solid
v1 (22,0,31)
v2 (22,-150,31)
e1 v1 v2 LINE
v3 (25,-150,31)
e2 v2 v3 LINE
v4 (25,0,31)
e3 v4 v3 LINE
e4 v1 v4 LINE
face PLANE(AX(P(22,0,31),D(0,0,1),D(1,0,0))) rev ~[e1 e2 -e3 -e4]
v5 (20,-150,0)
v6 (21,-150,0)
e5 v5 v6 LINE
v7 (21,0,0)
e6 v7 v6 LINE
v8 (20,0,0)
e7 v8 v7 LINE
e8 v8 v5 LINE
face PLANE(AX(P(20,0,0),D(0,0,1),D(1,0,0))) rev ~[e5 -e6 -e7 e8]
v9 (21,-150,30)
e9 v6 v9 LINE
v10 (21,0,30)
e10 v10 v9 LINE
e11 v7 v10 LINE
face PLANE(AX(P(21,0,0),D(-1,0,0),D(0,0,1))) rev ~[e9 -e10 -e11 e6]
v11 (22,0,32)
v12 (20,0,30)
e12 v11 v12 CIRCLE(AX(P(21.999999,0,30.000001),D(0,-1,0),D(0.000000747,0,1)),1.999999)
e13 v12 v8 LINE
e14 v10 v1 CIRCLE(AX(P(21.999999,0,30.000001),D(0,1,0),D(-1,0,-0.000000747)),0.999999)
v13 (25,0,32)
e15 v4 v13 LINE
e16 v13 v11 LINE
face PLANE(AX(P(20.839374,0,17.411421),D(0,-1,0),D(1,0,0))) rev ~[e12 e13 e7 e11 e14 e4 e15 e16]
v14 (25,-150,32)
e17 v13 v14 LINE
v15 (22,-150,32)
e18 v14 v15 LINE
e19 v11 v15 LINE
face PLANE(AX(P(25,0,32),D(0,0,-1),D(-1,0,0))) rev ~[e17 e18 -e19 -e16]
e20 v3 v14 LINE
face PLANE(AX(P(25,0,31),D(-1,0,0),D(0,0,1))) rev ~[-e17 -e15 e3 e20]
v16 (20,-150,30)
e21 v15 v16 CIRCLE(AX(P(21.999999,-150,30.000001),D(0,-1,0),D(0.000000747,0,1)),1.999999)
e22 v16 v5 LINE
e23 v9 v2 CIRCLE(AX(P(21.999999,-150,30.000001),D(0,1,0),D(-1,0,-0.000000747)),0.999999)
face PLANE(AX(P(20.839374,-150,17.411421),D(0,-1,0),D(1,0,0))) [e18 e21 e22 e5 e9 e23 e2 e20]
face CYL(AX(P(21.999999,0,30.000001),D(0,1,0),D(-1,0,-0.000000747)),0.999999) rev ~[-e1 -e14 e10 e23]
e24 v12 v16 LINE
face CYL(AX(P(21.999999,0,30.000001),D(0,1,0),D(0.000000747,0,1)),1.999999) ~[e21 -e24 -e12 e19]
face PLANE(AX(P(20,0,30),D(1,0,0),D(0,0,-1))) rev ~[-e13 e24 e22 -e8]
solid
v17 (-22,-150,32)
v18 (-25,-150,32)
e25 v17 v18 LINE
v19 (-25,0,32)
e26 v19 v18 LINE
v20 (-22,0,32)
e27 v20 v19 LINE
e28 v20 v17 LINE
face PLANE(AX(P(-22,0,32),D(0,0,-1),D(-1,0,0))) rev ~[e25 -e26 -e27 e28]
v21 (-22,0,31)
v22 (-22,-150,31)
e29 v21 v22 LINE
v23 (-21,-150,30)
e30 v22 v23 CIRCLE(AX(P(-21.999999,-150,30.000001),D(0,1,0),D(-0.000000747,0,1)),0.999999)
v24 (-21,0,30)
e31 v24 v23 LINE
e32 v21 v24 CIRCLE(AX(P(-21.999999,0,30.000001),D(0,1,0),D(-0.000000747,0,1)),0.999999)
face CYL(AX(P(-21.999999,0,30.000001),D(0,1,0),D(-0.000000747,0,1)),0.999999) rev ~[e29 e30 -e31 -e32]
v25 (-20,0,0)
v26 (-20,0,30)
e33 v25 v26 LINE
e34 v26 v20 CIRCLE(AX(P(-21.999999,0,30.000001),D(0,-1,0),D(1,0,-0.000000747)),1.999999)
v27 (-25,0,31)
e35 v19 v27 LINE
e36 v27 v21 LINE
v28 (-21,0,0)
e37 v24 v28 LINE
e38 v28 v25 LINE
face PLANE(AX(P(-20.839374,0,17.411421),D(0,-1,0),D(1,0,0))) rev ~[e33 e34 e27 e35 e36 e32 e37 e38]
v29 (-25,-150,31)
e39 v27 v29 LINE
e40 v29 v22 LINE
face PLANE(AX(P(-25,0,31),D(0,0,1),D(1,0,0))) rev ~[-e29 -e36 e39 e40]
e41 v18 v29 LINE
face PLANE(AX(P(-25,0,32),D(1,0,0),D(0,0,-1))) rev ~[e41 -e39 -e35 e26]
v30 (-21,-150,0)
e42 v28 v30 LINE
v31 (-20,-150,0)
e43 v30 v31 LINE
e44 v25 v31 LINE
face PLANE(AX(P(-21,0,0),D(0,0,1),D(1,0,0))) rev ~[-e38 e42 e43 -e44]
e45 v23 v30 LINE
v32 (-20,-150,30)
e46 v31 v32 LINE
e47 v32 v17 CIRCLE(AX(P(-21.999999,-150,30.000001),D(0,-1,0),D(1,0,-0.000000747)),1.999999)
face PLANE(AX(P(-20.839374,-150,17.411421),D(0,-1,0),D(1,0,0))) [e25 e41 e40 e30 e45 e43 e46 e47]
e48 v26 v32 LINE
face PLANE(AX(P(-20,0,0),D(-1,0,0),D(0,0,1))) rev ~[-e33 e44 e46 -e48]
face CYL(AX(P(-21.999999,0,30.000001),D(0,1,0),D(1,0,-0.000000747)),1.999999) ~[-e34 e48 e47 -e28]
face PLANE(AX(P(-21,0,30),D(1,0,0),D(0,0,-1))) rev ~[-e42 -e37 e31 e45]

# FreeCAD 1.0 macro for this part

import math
import FreeCAD as App
import Part
import Sketcher

V = App.Vector
Q = App.Units.Quantity

doc = App.newDocument("Part")
body = doc.addObject("PartDesign::Body", "Body")
body.AllowCompound = True

sketch1 = body.newObject("Sketcher::SketchObject", "Sketch")
sketch1.AttachmentSupport = (doc.getObject("XZ_Plane"), [""])
sketch1.MapMode = "FlatFace"
sketch1.addGeometry([
    Part.ArcOfCircle(Part.Circle(V(22, 30, 0), V(0, 0, 1), 1), math.radians(90), math.radians(180)),
    Part.LineSegment(V(22, 31, 0), V(25, 31, 0)),
    Part.LineSegment(V(25, 31, 0), V(25, 32, 0)),
    Part.LineSegment(V(25, 32, 0), V(22, 32, 0)),
    Part.ArcOfCircle(Part.Circle(V(22, 30, 0), V(0, 0, 1), 2), math.radians(90), math.radians(180)),
    Part.LineSegment(V(20, 30, 0), V(20, 0, 0)),
    Part.LineSegment(V(20, 0, 0), V(21, 0, 0)),
    Part.LineSegment(V(21, 0, 0), V(21, 30, 0)),
    Part.LineSegment(V(-22, 32, 0), V(-25, 32, 0)),
    Part.LineSegment(V(-25, 32, 0), V(-25, 31, 0)),
    Part.LineSegment(V(-25, 31, 0), V(-22, 31, 0)),
    Part.ArcOfCircle(Part.Circle(V(-22, 30, 0), V(0, 0, 1), 1), math.radians(0), math.radians(90)),
    Part.LineSegment(V(-21, 30, 0), V(-21, 0, 0)),
    Part.LineSegment(V(-21, 0, 0), V(-20, 0, 0)),
    Part.LineSegment(V(-20, 0, 0), V(-20, 30, 0)),
    Part.ArcOfCircle(Part.Circle(V(-22, 30, 0), V(0, 0, 1), 2), math.radians(0), math.radians(90)),
], False)
sketch1.addConstraint([
    Sketcher.Constraint("Tangent", 0, 1, 1, 1),
    Sketcher.Constraint("Coincident", 1, 2, 2, 1),
    Sketcher.Constraint("Coincident", 2, 2, 3, 1),
    Sketcher.Constraint("Tangent", 3, 2, 4, 1),
    Sketcher.Constraint("Tangent", 4, 2, 5, 1),
    Sketcher.Constraint("Coincident", 5, 2, 6, 1),
    Sketcher.Constraint("Coincident", 6, 2, 7, 1),
    Sketcher.Constraint("Tangent", 7, 2, 0, 2),
    Sketcher.Constraint("Coincident", 8, 2, 9, 1),
    Sketcher.Constraint("Coincident", 9, 2, 10, 1),
    Sketcher.Constraint("Tangent", 10, 2, 11, 2),
    Sketcher.Constraint("Tangent", 11, 1, 12, 1),
    Sketcher.Constraint("Coincident", 12, 2, 13, 1),
    Sketcher.Constraint("Coincident", 13, 2, 14, 1),
    Sketcher.Constraint("Tangent", 14, 2, 15, 1),
    Sketcher.Constraint("Tangent", 15, 2, 8, 1),
    Sketcher.Constraint("Horizontal", 1),
    Sketcher.Constraint("Vertical", 2),
    Sketcher.Constraint("Horizontal", 3),
    Sketcher.Constraint("Vertical", 5),
    Sketcher.Constraint("Horizontal", 6),
    Sketcher.Constraint("Vertical", 7),
    Sketcher.Constraint("Horizontal", 8),
    Sketcher.Constraint("Vertical", 9),
    Sketcher.Constraint("Horizontal", 10),
    Sketcher.Constraint("Vertical", 12),
    Sketcher.Constraint("Horizontal", 13),
    Sketcher.Constraint("Vertical", 14),
    Sketcher.Constraint("Coincident", 4, 3, 0, 3),
    Sketcher.Constraint("Coincident", 15, 3, 11, 3),
    Sketcher.Constraint("Equal", 0, 11),
    Sketcher.Constraint("Equal", 4, 15),
    Sketcher.Constraint("Symmetric", 6, 2, 12, 2, -1, 1),
    Sketcher.Constraint("Symmetric", 2, 2, 8, 2, -2),
    Sketcher.Constraint("PointOnObject", 5, 2, -1),
    Sketcher.Constraint("Radius", 0, Q("0.999999 mm")),
    Sketcher.Constraint("Radius", 4, Q("1.999999 mm")),
    Sketcher.Constraint("DistanceX", 1, 1, 1, 2, Q("3 mm")),
    Sketcher.Constraint("DistanceY", 5, 2, 5, 1, Q("30 mm")),
    Sketcher.Constraint("DistanceX", -1, 1, 0, 3, Q("21.999999 mm")),
])
pad1 = body.newObject("PartDesign::Pad", "Pad")
pad1.Profile = sketch1
pad1.Length = 150

doc.recompute()
